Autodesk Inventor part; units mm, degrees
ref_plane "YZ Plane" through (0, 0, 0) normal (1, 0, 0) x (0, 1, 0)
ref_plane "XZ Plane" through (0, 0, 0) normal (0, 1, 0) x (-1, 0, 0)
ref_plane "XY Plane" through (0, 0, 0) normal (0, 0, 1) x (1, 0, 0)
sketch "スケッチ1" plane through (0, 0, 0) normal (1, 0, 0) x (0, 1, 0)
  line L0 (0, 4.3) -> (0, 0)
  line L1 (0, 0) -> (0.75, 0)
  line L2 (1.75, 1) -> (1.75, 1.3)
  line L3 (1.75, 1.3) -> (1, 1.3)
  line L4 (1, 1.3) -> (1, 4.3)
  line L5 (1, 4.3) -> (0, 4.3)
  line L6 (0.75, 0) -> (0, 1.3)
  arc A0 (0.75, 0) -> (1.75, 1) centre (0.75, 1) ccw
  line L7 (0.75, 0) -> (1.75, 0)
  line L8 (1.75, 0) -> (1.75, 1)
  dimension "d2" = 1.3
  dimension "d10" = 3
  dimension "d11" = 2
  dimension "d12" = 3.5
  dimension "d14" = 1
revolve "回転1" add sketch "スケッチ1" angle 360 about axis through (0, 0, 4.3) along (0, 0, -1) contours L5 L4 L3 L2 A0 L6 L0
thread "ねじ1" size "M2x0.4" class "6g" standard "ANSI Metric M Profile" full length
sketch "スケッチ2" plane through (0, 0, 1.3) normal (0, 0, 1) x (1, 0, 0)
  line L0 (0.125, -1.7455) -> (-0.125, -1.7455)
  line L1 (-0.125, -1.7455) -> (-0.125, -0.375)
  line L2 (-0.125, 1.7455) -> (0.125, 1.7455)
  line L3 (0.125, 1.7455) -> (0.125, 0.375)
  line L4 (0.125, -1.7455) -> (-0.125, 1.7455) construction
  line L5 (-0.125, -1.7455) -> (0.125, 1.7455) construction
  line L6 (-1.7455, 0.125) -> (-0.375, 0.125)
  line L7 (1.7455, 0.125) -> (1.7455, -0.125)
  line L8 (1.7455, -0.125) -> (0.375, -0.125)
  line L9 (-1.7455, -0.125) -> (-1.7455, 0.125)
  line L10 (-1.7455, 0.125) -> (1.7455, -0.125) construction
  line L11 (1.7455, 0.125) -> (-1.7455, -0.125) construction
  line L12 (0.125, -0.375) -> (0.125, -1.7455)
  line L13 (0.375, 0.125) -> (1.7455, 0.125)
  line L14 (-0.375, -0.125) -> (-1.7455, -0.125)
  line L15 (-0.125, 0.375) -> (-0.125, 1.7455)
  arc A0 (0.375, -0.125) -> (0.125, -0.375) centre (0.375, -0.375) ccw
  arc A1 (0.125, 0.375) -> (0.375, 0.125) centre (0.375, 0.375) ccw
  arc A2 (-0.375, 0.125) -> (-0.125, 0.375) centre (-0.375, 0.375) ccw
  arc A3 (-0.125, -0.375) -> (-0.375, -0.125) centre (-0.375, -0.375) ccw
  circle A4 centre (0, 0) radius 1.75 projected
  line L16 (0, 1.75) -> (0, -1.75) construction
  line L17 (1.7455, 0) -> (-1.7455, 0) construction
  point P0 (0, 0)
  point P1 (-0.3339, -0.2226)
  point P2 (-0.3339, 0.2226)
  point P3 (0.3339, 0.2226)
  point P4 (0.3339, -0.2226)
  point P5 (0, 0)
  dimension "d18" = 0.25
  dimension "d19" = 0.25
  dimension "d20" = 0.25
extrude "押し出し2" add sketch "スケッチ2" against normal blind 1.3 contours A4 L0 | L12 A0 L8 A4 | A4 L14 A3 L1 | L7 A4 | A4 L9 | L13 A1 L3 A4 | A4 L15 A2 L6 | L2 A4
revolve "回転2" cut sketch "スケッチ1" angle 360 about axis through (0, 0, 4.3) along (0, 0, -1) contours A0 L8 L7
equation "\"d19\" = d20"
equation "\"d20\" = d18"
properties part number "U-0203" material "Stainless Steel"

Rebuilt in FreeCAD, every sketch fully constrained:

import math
import FreeCAD as App
import Part
import Sketcher

doc = App.newDocument("Part")
body = doc.addObject("PartDesign::Body", "Body")

# Sketch on YZ plane
sketch1 = doc.addObject("Sketcher::SketchObject", "Sketch")
body.addObject(sketch1)
sketch1.AttachmentSupport = (doc.YZ_Plane, [""])
sketch1.MapMode = "FlatFace"
sketch1.addGeometry([
    Part.LineSegment(App.Vector(1, 4.3, 0), App.Vector(0, 4.3, 0)),  # 0
    Part.LineSegment(App.Vector(0, 4.3, 0), App.Vector(0, 1.3, 0)),  # 1
    Part.LineSegment(App.Vector(0, 1.3, 0), App.Vector(0.75, 0, 0)),  # 2
    Part.ArcOfCircle(Part.Circle(App.Vector(0.75, 1, 0), App.Vector(0, 0, 1), 1), math.radians(-90), math.radians(0)),  # 3
    Part.LineSegment(App.Vector(1.75, 1, 0), App.Vector(1.75, 1.3, 0)),  # 4
    Part.LineSegment(App.Vector(1.75, 1.3, 0), App.Vector(1, 1.3, 0)),  # 5
    Part.LineSegment(App.Vector(1, 1.3, 0), App.Vector(1, 4.3, 0)),  # 6
], False)
sketch1.addConstraint([
    Sketcher.Constraint("Coincident", 0, 2, 1, 1),
    Sketcher.Constraint("Coincident", 1, 2, 2, 1),
    Sketcher.Constraint("Coincident", 2, 2, 3, 1),
    Sketcher.Constraint("Tangent", 3, 2, 4, 1),
    Sketcher.Constraint("Coincident", 4, 2, 5, 1),
    Sketcher.Constraint("Coincident", 5, 2, 6, 1),
    Sketcher.Constraint("Coincident", 6, 2, 0, 1),
    Sketcher.Constraint("Horizontal", 0),
    Sketcher.Constraint("Vertical", 1),
    Sketcher.Constraint("Vertical", 4),
    Sketcher.Constraint("Horizontal", 5),
    Sketcher.Constraint("Vertical", 6),
    Sketcher.Constraint("PointOnObject", 0, 2, -2),
    Sketcher.Constraint("PointOnObject", 2, 2, -1),
    Sketcher.Constraint("Horizontal", 1, 2, 4, 2),
    Sketcher.Constraint("Vertical", 3, 3, 2, 2),
    Sketcher.Constraint("Radius", 3, 1.0),
    Sketcher.Constraint("DistanceX", 0, 2, 0, 1, 1.0),
    Sketcher.Constraint("DistanceY", 1, 2, 1, 1, 3.0),
    Sketcher.Constraint("DistanceY", -1, 1, 1, 2, 1.3),
    Sketcher.Constraint("DistanceX", 5, 2, 5, 1, 0.75),
])
revolution = doc.addObject("PartDesign::Revolution", "Revolution")
body.addObject(revolution)
revolution.Profile = sketch1
revolution.ReferenceAxis = (sketch1, ["V_Axis"])
revolution.Angle = 360

# Sketch on XY plane
sketch2 = doc.addObject("Sketcher::SketchObject", "Sketch001")
body.addObject(sketch2)
sketch2.AttachmentSupport = (doc.XY_Plane, [""])
sketch2.MapMode = "FlatFace"
sketch2.AttachmentOffset = App.Placement(App.Vector(0, 0, 1.3), App.Rotation())
sketch2.addGeometry([
    Part.ArcOfCircle(Part.Circle(App.Vector(0, 0, 0), App.Vector(0, 0, 1), 1.75), math.radians(-94.096114), math.radians(-85.903886)),  # 0
    Part.LineSegment(App.Vector(-0.125, -1.7455, 0), App.Vector(0.125, -1.7455, 0)),  # 1
    Part.LineSegment(App.Vector(0.125, -0.375, 0), App.Vector(0.125, -1.7455, 0)),  # 2
    Part.ArcOfCircle(Part.Circle(App.Vector(0, 0, 0), App.Vector(0, 0, 1), 1.75), math.radians(-85.903886), math.radians(-4.096114)),  # 3
    Part.LineSegment(App.Vector(1.7455, -0.125, 0), App.Vector(0.375, -0.125, 0)),  # 4
    Part.ArcOfCircle(Part.Circle(App.Vector(0.375, -0.375, 0), App.Vector(0, 0, 1), 0.25), math.radians(90), math.radians(180)),  # 5
    Part.ArcOfCircle(Part.Circle(App.Vector(0, 0, 0), App.Vector(0, 0, 1), 1.75), math.radians(-175.903886), math.radians(-94.096114)),  # 6
    Part.LineSegment(App.Vector(-0.125, -1.7455, 0), App.Vector(-0.125, -0.375, 0)),  # 7
    Part.ArcOfCircle(Part.Circle(App.Vector(-0.375, -0.375, 0), App.Vector(0, 0, 1), 0.25), math.radians(0), math.radians(90)),  # 8
    Part.LineSegment(App.Vector(-0.375, -0.125, 0), App.Vector(-1.7455, -0.125, 0)),  # 9
    Part.LineSegment(App.Vector(1.7455, 0.125, 0), App.Vector(1.7455, -0.125, 0)),  # 10
    Part.ArcOfCircle(Part.Circle(App.Vector(0, 0, 0), App.Vector(0, 0, 1), 1.75), math.radians(-4.096114), math.radians(4.096114)),  # 11
    Part.ArcOfCircle(Part.Circle(App.Vector(0, 0, 0), App.Vector(0, 0, 1), 1.75), math.radians(175.903886), math.radians(184.096114)),  # 12
    Part.LineSegment(App.Vector(-1.7455, 0.125, 0), App.Vector(-1.7455, -0.125, 0)),  # 13
    Part.LineSegment(App.Vector(0.375, 0.125, 0), App.Vector(1.7455, 0.125, 0)),  # 14
    Part.ArcOfCircle(Part.Circle(App.Vector(0, 0, 0), App.Vector(0, 0, 1), 1.75), math.radians(4.096114), math.radians(85.903886)),  # 15
    Part.LineSegment(App.Vector(0.125, 1.7455, 0), App.Vector(0.125, 0.375, 0)),  # 16
    Part.ArcOfCircle(Part.Circle(App.Vector(0.375, 0.375, 0), App.Vector(0, 0, 1), 0.25), math.radians(180), math.radians(270)),  # 17
    Part.ArcOfCircle(Part.Circle(App.Vector(0, 0, 0), App.Vector(0, 0, 1), 1.75), math.radians(94.096114), math.radians(175.903886)),  # 18
    Part.LineSegment(App.Vector(-1.7455, 0.125, 0), App.Vector(-0.375, 0.125, 0)),  # 19
    Part.ArcOfCircle(Part.Circle(App.Vector(-0.375, 0.375, 0), App.Vector(0, 0, 1), 0.25), math.radians(-90), math.radians(0)),  # 20
    Part.LineSegment(App.Vector(-0.125, 0.375, 0), App.Vector(-0.125, 1.7455, 0)),  # 21
    Part.LineSegment(App.Vector(-0.125, 1.7455, 0), App.Vector(0.125, 1.7455, 0)),  # 22
    Part.ArcOfCircle(Part.Circle(App.Vector(0, 0, 0), App.Vector(0, 0, 1), 1.75), math.radians(85.903886), math.radians(94.096114)),  # 23
], False)
sketch2.addConstraint([
    Sketcher.Constraint("Coincident", 0, 1, 1, 1),
    Sketcher.Constraint("Coincident", 1, 2, 0, 2),
    Sketcher.Constraint("Coincident", 2, 2, 3, 1),
    Sketcher.Constraint("Coincident", 3, 2, 4, 1),
    Sketcher.Constraint("Tangent", 4, 2, 5, 1),
    Sketcher.Constraint("Tangent", 5, 2, 2, 1),
    Sketcher.Constraint("Coincident", 6, 2, 7, 1),
    Sketcher.Constraint("Tangent", 7, 2, 8, 1),
    Sketcher.Constraint("Tangent", 8, 2, 9, 1),
    Sketcher.Constraint("Coincident", 9, 2, 6, 1),
    Sketcher.Constraint("Coincident", 10, 1, 11, 2),
    Sketcher.Constraint("Coincident", 11, 1, 10, 2),
    Sketcher.Constraint("Coincident", 12, 1, 13, 1),
    Sketcher.Constraint("Coincident", 13, 2, 12, 2),
    Sketcher.Constraint("Coincident", 14, 2, 15, 1),
    Sketcher.Constraint("Coincident", 15, 2, 16, 1),
    Sketcher.Constraint("Tangent", 16, 2, 17, 1),
    Sketcher.Constraint("Tangent", 17, 2, 14, 1),
    Sketcher.Constraint("Coincident", 18, 2, 19, 1),
    Sketcher.Constraint("Tangent", 19, 2, 20, 1),
    Sketcher.Constraint("Tangent", 20, 2, 21, 1),
    Sketcher.Constraint("Coincident", 21, 2, 18, 1),
    Sketcher.Constraint("Coincident", 22, 1, 23, 2),
    Sketcher.Constraint("Coincident", 23, 1, 22, 2),
    Sketcher.Constraint("Horizontal", 1),
    Sketcher.Constraint("Vertical", 2),
    Sketcher.Constraint("Horizontal", 4),
    Sketcher.Constraint("Vertical", 7),
    Sketcher.Constraint("Horizontal", 9),
    Sketcher.Constraint("Vertical", 10),
    Sketcher.Constraint("Vertical", 13),
    Sketcher.Constraint("Horizontal", 14),
    Sketcher.Constraint("Vertical", 16),
    Sketcher.Constraint("Horizontal", 19),
    Sketcher.Constraint("Vertical", 21),
    Sketcher.Constraint("Horizontal", 22),
    Sketcher.Constraint("Coincident", 0, 3, -1, 1),
    Sketcher.Constraint("Coincident", 3, 3, -1, 1),
    Sketcher.Constraint("Coincident", 6, 3, -1, 1),
    Sketcher.Constraint("Coincident", 11, 3, -1, 1),
    Sketcher.Constraint("Coincident", 12, 3, -1, 1),
    Sketcher.Constraint("Coincident", 15, 3, -1, 1),
    Sketcher.Constraint("Coincident", 18, 3, -1, 1),
    Sketcher.Constraint("Coincident", 23, 3, -1, 1),
    Sketcher.Constraint("Coincident", 2, 2, 1, 2),
    Sketcher.Constraint("Coincident", 6, 2, 0, 1),
    Sketcher.Constraint("Coincident", 11, 1, 3, 2),
    Sketcher.Constraint("Coincident", 13, 2, 9, 2),
    Sketcher.Constraint("Coincident", 14, 2, 10, 1),
    Sketcher.Constraint("Coincident", 18, 2, 12, 1),
    Sketcher.Constraint("Coincident", 22, 1, 21, 2),
    Sketcher.Constraint("Equal", 5, 8),
    Sketcher.Constraint("Equal", 8, 17),
    Sketcher.Constraint("Equal", 17, 20),
    Sketcher.Constraint("Symmetric", 8, 3, 17, 3, -1, 1),
    Sketcher.Constraint("Horizontal", 15, 2, 21, 2),
    Sketcher.Constraint("Equal", 19, 2),
    Sketcher.Constraint("Radius", 5, 0.25),
    Sketcher.Constraint("DistanceX", 1, 1, 1, 2, 0.25),
    Sketcher.Constraint("Radius", 0, 1.75),
])
pad1 = doc.addObject("PartDesign::Pad", "Pad")
body.addObject(pad1)
pad1.Profile = sketch2
pad1.Length = 1.3
pad1.Reversed = True

# Sketch on YZ plane
sketch3 = doc.addObject("Sketcher::SketchObject", "Sketch002")
body.addObject(sketch3)
sketch3.AttachmentSupport = (doc.YZ_Plane, [""])
sketch3.MapMode = "FlatFace"
sketch3.addGeometry([
    Part.ArcOfCircle(Part.Circle(App.Vector(0.75, 1, 0), App.Vector(0, 0, 1), 1), math.radians(-90), math.radians(0)),
    Part.LineSegment(App.Vector(0.75, 0, 0), App.Vector(1.75, 0, 0)),
    Part.LineSegment(App.Vector(1.75, 0, 0), App.Vector(1.75, 1, 0)),
], False)
sketch3.addConstraint([
    Sketcher.Constraint("Tangent", 0, 1, 1, 1),
    Sketcher.Constraint("Coincident", 1, 2, 2, 1),
    Sketcher.Constraint("Tangent", 2, 2, 0, 2),
    Sketcher.Constraint("Horizontal", 1),
    Sketcher.Constraint("Vertical", 2),
    Sketcher.Constraint("PointOnObject", 0, 1, -1),
    Sketcher.Constraint("Radius", 0, 1.0),
    Sketcher.Constraint("DistanceX", -1, 1, 0, 3, 0.75),
])
groove = doc.addObject("PartDesign::Groove", "Groove")
body.addObject(groove)
groove.Profile = sketch3
groove.ReferenceAxis = (sketch3, ["V_Axis"])
groove.Angle = 360

doc.recompute()
